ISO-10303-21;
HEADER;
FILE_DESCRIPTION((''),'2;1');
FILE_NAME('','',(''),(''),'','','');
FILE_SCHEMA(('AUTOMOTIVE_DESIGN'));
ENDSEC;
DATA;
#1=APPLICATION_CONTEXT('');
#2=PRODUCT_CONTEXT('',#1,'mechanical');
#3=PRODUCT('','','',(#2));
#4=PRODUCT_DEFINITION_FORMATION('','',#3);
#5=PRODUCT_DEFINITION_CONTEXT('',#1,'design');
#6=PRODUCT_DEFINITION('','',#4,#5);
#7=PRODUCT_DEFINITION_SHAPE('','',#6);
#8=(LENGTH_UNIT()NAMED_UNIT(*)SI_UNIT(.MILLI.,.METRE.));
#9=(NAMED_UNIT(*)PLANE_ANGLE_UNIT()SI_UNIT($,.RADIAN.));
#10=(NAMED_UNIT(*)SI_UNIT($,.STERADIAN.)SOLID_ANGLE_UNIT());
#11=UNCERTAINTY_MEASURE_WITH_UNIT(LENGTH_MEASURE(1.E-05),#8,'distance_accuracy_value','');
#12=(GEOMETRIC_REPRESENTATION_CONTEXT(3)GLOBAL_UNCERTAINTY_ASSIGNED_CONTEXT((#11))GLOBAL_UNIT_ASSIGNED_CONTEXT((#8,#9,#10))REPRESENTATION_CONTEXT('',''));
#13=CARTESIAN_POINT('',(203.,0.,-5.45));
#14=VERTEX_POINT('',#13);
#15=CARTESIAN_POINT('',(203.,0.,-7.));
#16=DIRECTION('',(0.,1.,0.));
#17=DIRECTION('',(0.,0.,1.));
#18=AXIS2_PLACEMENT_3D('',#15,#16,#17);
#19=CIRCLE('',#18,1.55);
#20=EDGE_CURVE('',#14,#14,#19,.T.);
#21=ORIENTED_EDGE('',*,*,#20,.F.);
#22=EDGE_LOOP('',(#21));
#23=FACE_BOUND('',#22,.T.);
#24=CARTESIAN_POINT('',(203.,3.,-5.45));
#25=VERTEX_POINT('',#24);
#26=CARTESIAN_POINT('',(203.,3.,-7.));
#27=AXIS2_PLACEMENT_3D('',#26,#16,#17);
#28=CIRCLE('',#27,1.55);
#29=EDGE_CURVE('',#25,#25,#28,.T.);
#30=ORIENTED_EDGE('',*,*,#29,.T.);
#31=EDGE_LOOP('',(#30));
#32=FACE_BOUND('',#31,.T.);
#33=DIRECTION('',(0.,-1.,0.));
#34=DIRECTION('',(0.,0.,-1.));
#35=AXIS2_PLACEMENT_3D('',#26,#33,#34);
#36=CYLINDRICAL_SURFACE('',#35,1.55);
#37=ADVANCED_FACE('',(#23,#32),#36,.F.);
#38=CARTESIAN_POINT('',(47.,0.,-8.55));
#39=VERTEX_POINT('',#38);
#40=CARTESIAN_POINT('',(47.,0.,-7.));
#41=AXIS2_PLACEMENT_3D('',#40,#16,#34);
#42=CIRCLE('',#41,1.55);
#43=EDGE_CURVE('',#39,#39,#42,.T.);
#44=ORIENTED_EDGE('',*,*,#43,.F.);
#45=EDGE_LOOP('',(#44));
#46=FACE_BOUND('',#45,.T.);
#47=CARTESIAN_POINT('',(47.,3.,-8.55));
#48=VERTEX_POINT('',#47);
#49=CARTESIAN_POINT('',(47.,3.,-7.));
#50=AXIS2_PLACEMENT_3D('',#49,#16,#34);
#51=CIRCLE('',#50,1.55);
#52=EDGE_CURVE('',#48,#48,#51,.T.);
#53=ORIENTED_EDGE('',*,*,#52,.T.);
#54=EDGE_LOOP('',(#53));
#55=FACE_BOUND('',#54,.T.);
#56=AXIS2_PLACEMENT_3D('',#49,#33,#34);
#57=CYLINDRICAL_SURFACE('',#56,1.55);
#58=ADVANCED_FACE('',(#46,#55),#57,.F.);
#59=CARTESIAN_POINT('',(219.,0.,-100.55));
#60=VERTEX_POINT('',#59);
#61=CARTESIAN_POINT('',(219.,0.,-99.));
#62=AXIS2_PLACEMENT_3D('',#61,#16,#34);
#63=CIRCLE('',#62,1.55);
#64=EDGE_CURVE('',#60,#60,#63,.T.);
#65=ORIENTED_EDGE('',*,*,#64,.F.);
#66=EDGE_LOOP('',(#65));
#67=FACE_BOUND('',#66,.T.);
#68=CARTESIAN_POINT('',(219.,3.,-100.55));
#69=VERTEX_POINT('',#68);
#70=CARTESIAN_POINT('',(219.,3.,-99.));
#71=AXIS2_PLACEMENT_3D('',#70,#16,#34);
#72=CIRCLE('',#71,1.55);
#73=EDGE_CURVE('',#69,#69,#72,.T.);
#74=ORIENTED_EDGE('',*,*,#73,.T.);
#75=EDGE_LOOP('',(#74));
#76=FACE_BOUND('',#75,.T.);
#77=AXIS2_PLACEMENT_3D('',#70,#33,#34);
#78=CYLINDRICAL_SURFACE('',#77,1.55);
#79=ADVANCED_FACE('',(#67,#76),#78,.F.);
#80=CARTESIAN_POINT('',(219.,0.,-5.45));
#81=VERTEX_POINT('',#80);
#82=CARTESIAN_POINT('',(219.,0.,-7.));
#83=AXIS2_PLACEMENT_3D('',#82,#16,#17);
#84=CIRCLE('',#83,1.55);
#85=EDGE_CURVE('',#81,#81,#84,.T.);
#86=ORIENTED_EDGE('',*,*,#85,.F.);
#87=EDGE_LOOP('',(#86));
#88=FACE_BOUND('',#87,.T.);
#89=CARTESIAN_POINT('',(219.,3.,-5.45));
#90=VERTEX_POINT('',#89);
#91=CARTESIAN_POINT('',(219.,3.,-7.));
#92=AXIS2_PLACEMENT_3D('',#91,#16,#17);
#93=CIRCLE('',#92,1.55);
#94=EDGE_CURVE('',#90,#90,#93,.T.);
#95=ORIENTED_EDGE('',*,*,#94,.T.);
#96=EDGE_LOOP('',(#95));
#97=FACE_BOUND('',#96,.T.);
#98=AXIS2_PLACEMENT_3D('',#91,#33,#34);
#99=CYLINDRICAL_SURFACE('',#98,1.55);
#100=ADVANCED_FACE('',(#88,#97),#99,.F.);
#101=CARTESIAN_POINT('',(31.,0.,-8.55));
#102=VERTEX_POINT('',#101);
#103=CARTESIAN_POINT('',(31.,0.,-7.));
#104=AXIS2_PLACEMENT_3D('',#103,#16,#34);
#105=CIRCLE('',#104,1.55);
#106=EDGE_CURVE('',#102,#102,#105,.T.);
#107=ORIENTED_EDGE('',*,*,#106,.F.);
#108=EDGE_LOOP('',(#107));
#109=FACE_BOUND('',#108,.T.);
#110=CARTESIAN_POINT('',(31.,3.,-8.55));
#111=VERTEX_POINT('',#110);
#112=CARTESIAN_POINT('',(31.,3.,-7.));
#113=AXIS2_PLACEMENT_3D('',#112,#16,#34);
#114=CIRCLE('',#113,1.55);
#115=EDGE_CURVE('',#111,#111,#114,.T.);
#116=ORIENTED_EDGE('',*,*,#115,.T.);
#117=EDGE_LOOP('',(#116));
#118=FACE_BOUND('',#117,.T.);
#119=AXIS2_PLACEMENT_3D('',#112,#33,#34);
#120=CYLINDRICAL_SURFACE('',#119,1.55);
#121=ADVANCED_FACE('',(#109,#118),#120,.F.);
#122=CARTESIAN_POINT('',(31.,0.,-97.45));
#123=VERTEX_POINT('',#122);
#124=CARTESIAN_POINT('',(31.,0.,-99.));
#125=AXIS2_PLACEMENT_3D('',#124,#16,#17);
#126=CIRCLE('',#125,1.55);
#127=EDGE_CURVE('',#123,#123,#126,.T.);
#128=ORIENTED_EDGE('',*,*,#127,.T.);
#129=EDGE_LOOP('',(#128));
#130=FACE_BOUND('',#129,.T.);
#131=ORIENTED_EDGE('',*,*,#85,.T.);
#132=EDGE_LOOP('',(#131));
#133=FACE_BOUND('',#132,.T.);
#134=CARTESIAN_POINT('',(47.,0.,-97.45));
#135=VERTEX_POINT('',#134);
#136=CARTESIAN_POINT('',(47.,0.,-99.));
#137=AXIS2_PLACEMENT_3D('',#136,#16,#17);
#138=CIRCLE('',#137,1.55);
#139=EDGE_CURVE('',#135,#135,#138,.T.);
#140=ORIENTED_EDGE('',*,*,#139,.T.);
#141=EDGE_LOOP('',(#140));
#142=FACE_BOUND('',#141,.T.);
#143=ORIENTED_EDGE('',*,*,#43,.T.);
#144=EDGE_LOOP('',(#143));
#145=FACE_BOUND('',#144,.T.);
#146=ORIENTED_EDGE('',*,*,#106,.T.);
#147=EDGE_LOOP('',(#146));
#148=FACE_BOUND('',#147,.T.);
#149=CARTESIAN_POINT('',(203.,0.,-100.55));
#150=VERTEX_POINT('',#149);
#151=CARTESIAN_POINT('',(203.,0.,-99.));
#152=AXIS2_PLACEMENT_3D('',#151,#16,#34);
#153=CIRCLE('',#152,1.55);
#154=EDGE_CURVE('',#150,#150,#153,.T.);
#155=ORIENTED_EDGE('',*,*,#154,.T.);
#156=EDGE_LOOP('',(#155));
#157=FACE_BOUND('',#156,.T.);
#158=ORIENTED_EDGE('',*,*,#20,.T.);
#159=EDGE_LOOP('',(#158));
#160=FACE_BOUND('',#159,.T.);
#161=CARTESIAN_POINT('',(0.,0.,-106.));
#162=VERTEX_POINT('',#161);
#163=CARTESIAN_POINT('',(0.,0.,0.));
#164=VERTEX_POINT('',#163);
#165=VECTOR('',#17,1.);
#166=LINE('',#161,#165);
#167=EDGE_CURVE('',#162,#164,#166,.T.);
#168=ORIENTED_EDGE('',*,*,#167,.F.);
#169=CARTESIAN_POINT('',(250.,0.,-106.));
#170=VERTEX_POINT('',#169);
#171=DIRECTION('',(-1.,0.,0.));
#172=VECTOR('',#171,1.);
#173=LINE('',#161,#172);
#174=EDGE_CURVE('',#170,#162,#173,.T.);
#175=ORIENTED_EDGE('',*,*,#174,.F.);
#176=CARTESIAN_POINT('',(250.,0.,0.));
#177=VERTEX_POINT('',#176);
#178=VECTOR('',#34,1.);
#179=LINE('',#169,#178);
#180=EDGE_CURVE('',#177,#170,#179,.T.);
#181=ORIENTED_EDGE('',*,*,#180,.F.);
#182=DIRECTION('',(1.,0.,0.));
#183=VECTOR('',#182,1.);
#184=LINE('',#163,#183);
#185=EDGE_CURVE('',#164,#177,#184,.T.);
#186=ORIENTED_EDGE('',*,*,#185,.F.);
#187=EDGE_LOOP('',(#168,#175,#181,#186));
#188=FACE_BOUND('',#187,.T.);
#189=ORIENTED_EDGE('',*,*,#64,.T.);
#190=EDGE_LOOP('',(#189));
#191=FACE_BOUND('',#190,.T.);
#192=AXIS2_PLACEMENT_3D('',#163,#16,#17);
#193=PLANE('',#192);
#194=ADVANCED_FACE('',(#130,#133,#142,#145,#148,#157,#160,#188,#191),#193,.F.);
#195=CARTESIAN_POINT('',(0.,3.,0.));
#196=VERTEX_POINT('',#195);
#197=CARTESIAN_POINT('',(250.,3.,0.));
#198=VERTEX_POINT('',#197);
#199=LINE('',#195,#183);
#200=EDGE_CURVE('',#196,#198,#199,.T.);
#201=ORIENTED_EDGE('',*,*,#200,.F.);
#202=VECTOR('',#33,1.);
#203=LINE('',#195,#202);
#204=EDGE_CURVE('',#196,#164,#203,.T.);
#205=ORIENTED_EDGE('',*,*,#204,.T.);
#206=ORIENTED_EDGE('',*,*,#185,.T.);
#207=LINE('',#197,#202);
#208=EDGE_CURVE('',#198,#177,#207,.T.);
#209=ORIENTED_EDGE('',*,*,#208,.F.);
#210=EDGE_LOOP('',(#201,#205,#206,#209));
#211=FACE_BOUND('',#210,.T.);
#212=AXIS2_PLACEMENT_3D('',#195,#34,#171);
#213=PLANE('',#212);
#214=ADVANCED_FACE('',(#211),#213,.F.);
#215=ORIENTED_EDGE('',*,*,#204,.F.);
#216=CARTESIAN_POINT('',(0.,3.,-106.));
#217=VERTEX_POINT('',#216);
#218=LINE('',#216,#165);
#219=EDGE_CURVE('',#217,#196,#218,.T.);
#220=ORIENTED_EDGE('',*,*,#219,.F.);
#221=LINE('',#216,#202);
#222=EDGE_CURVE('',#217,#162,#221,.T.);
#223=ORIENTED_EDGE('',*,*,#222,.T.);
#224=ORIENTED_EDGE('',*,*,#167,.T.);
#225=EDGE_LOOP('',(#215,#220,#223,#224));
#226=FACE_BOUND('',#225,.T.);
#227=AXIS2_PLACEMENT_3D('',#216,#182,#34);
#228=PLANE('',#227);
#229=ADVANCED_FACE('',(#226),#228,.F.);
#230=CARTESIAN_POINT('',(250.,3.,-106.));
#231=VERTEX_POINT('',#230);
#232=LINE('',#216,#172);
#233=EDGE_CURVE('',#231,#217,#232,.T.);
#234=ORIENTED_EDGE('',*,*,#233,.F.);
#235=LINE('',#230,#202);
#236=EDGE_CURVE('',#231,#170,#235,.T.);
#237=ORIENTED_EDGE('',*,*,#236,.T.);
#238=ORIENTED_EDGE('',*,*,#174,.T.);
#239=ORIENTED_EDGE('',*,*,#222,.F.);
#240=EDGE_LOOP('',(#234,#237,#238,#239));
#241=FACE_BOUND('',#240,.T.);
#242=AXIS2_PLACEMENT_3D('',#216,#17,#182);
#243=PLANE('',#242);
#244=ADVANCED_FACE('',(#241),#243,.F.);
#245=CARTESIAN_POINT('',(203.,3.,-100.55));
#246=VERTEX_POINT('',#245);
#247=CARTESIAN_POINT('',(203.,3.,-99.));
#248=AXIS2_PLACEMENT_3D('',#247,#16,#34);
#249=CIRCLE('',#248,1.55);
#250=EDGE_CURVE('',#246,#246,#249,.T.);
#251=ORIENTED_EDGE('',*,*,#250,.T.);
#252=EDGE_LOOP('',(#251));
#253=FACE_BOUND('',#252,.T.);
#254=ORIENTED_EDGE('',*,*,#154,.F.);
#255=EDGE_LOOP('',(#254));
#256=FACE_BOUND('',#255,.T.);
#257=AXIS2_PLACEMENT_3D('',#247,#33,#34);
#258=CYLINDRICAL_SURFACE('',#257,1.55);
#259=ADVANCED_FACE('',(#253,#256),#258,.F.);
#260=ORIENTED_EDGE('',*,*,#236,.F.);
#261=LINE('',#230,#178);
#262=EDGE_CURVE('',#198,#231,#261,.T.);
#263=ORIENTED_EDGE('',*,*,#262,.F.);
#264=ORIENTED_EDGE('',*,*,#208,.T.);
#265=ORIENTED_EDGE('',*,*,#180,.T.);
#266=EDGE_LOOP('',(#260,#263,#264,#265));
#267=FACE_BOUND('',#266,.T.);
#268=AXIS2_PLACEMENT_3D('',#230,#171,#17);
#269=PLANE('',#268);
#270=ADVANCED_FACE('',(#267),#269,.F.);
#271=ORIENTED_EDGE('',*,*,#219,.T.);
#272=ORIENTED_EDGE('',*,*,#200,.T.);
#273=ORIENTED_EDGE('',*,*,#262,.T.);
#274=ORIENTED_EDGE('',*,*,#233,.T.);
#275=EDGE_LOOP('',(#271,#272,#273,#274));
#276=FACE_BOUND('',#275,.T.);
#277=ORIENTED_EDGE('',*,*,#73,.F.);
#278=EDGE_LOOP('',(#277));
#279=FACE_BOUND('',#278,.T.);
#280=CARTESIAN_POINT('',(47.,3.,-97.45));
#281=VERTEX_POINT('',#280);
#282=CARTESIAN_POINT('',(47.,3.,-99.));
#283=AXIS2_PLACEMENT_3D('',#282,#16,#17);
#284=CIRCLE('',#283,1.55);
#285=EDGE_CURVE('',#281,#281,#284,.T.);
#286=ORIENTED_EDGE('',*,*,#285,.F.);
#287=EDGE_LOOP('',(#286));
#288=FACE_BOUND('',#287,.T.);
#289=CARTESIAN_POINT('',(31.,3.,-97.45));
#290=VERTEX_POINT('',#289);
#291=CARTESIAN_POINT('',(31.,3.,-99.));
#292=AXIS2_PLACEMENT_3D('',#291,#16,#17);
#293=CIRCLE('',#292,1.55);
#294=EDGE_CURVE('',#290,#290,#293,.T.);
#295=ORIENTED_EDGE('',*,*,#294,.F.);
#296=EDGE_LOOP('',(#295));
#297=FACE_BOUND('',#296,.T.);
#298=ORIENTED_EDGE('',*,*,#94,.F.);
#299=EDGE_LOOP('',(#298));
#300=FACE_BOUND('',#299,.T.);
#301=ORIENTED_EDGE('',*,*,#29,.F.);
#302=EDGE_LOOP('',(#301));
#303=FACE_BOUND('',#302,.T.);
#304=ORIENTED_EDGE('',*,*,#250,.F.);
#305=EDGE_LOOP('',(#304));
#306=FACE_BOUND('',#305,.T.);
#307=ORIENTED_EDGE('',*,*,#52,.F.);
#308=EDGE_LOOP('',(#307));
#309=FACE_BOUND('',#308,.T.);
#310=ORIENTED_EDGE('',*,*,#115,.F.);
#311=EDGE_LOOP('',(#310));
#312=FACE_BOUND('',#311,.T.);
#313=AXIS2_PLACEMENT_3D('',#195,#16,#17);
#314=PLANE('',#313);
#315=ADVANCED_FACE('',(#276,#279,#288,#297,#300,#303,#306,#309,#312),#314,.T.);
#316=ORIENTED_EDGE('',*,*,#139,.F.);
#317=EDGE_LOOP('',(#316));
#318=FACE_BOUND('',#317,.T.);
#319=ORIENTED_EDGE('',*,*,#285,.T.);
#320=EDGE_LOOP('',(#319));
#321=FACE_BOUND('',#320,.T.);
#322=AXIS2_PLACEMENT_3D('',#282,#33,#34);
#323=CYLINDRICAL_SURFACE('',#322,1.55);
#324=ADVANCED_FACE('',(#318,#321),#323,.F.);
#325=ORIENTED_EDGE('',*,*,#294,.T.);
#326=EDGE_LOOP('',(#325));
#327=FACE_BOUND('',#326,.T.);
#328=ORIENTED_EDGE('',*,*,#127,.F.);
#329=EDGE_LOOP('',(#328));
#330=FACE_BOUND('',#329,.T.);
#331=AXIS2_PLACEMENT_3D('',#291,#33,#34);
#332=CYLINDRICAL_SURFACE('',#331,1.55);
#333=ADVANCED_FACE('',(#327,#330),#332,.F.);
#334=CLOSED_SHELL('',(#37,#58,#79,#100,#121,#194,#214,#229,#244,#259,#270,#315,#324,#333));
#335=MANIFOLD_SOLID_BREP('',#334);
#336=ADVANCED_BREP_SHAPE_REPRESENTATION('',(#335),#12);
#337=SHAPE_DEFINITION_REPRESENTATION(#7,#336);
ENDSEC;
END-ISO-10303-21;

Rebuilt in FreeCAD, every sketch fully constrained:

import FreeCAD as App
import Part
import Sketcher

V = App.Vector
Q = App.Units.Quantity


def add_polygon(sketch, points):
    """Adds a closed chain of lines whose ends are joined by coincident constraints."""
    first, n = sketch.GeometryCount, len(points)
    for a, b in zip(points, points[1:] + points[:1]):
        sketch.addGeometry(Part.LineSegment(App.Vector(*a, 0), App.Vector(*b, 0)), False)
    for i in range(n):
        sketch.addConstraint(Sketcher.Constraint("Coincident", first + i, 2, first + (i + 1) % n, 1))

doc = App.newDocument("Part")
params = doc.addObject("Spreadsheet::Sheet", "Params")
for row, (alias, value) in enumerate([
    ("sketch1_diameter", "3.1 mm"),
    ("sketch1_width", "250 mm"),
    ("sketch1_height", "106 mm"),
    ("pad1_length", "3 mm"),
], start=1):
    params.set(f"A{row}", alias)
    params.set(f"B{row}", "=" + value)
    params.setAlias(f"B{row}", alias)

body = doc.addObject("PartDesign::Body", "Body")

# Sketch on XZ plane
sketch1 = body.newObject("Sketcher::SketchObject", "Sketch")
sketch1.AttachmentSupport = (doc.getObject("XZ_Plane"), [""])
sketch1.MapMode = "FlatFace"
add_polygon(sketch1, [(0, -106), (0, 0), (250, 0), (250, -106)])  # lines 0-3
sketch1.addGeometry(Part.Circle(V(31, -7, 0), V(0, 0, 1), 1.6), False)  # 4
sketch1.addGeometry(Part.Circle(V(47, -7, 0), V(0, 0, 1), 1.6), False)  # 5
sketch1.addGeometry(Part.Circle(V(203, -7, 0), V(0, 0, 1), 1.6), False)  # 6
sketch1.addGeometry(Part.Circle(V(219, -7, 0), V(0, 0, 1), 1.6), False)  # 7
sketch1.addGeometry(Part.Circle(V(31, -99, 0), V(0, 0, 1), 1.6), False)  # 8
sketch1.addGeometry(Part.Circle(V(47, -99, 0), V(0, 0, 1), 1.6), False)  # 9
sketch1.addGeometry(Part.Circle(V(203, -99, 0), V(0, 0, 1), 1.6), False)  # 10
sketch1.addGeometry(Part.Circle(V(219, -99, 0), V(0, 0, 1), 1.6), False)  # 11
sketch1.addConstraint([
    Sketcher.Constraint("Vertical", 0),
    Sketcher.Constraint("Horizontal", 1),
    Sketcher.Constraint("Vertical", 2),
    Sketcher.Constraint("Horizontal", 3),
    Sketcher.Constraint("Coincident", 0, 2, -1, 1),
    Sketcher.Constraint("Equal", 4, 5),
    Sketcher.Constraint("Equal", 5, 6),
    Sketcher.Constraint("Equal", 6, 7),
    Sketcher.Constraint("Equal", 7, 8),
    Sketcher.Constraint("Equal", 8, 9),
    Sketcher.Constraint("Equal", 9, 10),
    Sketcher.Constraint("Equal", 10, 11),
    Sketcher.Constraint("Horizontal", 4, 3, 5, 3),
    Sketcher.Constraint("Horizontal", 5, 3, 6, 3),
    Sketcher.Constraint("Horizontal", 6, 3, 7, 3),
    Sketcher.Constraint("Horizontal", 8, 3, 9, 3),
    Sketcher.Constraint("Horizontal", 9, 3, 10, 3),
    Sketcher.Constraint("Horizontal", 10, 3, 11, 3),
    Sketcher.Constraint("Vertical", 4, 3, 8, 3),
    Sketcher.Constraint("Vertical", 5, 3, 9, 3),
    Sketcher.Constraint("Vertical", 6, 3, 10, 3),
    Sketcher.Constraint("Vertical", 7, 3, 11, 3),
    Sketcher.Constraint("Diameter", 4, Q("3.1 mm")),
    Sketcher.Constraint("DistanceX", 1, 1, 1, 2, Q("250 mm")),
    Sketcher.Constraint("DistanceY", 0, 1, 0, 2, Q("106 mm")),
    Sketcher.Constraint("DistanceX", -1, 1, 4, 3, Q("31 mm")),
    Sketcher.Constraint("DistanceY", 4, 3, -1, 1, Q("7 mm")),
    Sketcher.Constraint("DistanceX", -1, 1, 5, 3, Q("47 mm")),
    Sketcher.Constraint("DistanceX", -1, 1, 6, 3, Q("203 mm")),
    Sketcher.Constraint("DistanceX", -1, 1, 7, 3, Q("219 mm")),
    Sketcher.Constraint("DistanceY", 8, 3, -1, 1, Q("99 mm")),
])
sketch1.setExpression("Constraints[26]", "Params.sketch1_diameter")
sketch1.setExpression("Constraints[27]", "Params.sketch1_width")
sketch1.setExpression("Constraints[28]", "Params.sketch1_height")
pad1 = body.newObject("PartDesign::Pad", "Pad")
pad1.Profile = sketch1
pad1.setExpression("Length", "Params.pad1_length")
pad1.Reversed = True

doc.recompute()
